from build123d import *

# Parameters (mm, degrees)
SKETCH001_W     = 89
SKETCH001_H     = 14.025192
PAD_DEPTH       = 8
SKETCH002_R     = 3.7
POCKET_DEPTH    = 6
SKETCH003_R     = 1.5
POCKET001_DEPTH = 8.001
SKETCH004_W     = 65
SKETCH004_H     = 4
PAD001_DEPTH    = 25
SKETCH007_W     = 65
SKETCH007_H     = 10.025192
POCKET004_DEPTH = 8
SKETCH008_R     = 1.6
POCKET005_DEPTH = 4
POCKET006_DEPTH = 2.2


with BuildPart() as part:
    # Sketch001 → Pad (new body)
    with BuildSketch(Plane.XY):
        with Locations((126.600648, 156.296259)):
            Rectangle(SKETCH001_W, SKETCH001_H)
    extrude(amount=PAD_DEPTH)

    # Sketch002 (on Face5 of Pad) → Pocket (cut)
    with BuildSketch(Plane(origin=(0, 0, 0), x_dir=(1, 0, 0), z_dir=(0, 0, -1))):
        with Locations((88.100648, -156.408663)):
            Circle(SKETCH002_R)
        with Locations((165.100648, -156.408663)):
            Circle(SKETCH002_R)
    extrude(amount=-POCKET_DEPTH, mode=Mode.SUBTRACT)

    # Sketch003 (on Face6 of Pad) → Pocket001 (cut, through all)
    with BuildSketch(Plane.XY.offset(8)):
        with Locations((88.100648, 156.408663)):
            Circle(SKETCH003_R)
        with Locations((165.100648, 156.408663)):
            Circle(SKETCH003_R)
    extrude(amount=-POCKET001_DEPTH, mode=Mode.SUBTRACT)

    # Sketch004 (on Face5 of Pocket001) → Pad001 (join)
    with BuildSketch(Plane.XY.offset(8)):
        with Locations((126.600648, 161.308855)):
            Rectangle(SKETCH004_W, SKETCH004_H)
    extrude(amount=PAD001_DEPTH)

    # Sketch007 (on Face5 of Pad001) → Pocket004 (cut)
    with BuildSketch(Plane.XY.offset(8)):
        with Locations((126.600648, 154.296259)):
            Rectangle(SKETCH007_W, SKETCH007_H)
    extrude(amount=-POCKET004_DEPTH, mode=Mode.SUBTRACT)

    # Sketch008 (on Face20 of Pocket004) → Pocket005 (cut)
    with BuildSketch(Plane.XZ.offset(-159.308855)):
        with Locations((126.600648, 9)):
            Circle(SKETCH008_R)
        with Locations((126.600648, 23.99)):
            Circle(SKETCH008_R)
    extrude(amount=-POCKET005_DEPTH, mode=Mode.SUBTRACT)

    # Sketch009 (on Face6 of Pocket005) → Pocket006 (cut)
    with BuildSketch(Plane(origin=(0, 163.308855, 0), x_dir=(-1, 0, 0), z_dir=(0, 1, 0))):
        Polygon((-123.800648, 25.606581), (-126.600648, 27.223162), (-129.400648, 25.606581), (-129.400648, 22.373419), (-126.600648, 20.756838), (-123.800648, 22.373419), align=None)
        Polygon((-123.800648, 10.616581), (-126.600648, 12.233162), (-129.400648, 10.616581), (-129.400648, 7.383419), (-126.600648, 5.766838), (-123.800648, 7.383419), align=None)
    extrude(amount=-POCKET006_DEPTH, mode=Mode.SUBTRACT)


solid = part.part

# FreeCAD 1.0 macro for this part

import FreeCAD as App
import Part
import Sketcher
from FreeCAD import Vector
Q = App.Units.Quantity


def add_polygon(sketch, points):
    """Adds a closed chain of lines whose ends are joined by coincident constraints."""
    first, n = sketch.GeometryCount, len(points)
    for a, b in zip(points, points[1:] + points[:1]):
        sketch.addGeometry(Part.LineSegment(App.Vector(*a, 0), App.Vector(*b, 0)), False)
    for i in range(n):
        sketch.addConstraint(Sketcher.Constraint("Coincident", first + i, 2, first + (i + 1) % n, 1))

doc = App.newDocument("Part")
body = doc.addObject("PartDesign::Body", "Body")

# Sketch on XY plane
sketch1 = doc.addObject("Sketcher::SketchObject", "Sketch")
body.addObject(sketch1)
sketch1.AttachmentSupport = (doc.XY_Plane, [""])
sketch1.MapMode = "FlatFace"
add_polygon(sketch1, [(82.100648, 163.308855), (82.100648, 149.283663), (171.100648, 149.283663), (171.100648, 163.308855)])  # lines 0-3
sketch1.addConstraint([
    Sketcher.Constraint("Vertical", 0),
    Sketcher.Constraint("Horizontal", 1),
    Sketcher.Constraint("Vertical", 2),
    Sketcher.Constraint("Horizontal", 3),
    Sketcher.Constraint("DistanceX", 1, 1, 1, 2, 89.0),
    Sketcher.Constraint("DistanceY", 0, 2, 0, 1, 14.025192),
    Sketcher.Constraint("DistanceX", -1, 1, 0, 2, 82.100648),
    Sketcher.Constraint("DistanceY", -1, 1, 0, 2, 149.283663),
])
pad1 = doc.addObject("PartDesign::Pad", "Pad")
body.addObject(pad1)
pad1.Profile = sketch1
pad1.Length = 8

# Sketch on XY plane
sketch2 = doc.addObject("Sketcher::SketchObject", "Sketch001")
body.addObject(sketch2)
sketch2.AttachmentSupport = (doc.XY_Plane, [""])
sketch2.MapMode = "FlatFace"
sketch2.addGeometry([
    Part.Circle(Vector(88.100648, 156.408663, 0), Vector(0, 0, 1), 3.7),
    Part.Circle(Vector(165.100648, 156.408663, 0), Vector(0, 0, 1), 3.7),
], False)
sketch2.addConstraint([
    Sketcher.Constraint("Equal", 0, 1),
    Sketcher.Constraint("Horizontal", 0, 3, 1, 3),
    Sketcher.Constraint("Diameter", 0, 7.4),
    Sketcher.Constraint("DistanceX", 0, 3, 1, 3, 77.0),
    Sketcher.Constraint("DistanceX", -1, 1, 0, 3, 88.100648),
    Sketcher.Constraint("DistanceY", -1, 1, 0, 3, 156.408663),
])
pocket1 = doc.addObject("PartDesign::Pocket", "Pocket")
body.addObject(pocket1)
pocket1.Profile = sketch2
pocket1.Length = 6
pocket1.Reversed = True

# Sketch on XY plane
sketch3 = doc.addObject("Sketcher::SketchObject", "Sketch002")
body.addObject(sketch3)
sketch3.AttachmentSupport = (doc.XY_Plane, [""])
sketch3.MapMode = "FlatFace"
sketch3.AttachmentOffset = App.Placement(Vector(0, 0, 8), App.Rotation())
sketch3.addGeometry([
    Part.Circle(Vector(88.100648, 156.408663, 0), Vector(0, 0, 1), 1.5),
    Part.Circle(Vector(165.100648, 156.408663, 0), Vector(0, 0, 1), 1.5),
], False)
sketch3.addConstraint([
    Sketcher.Constraint("Equal", 0, 1),
    Sketcher.Constraint("Horizontal", 0, 3, 1, 3),
    Sketcher.Constraint("Diameter", 0, 3.0),
    Sketcher.Constraint("DistanceX", 0, 3, 1, 3, 77.0),
    Sketcher.Constraint("DistanceX", -1, 1, 0, 3, 88.100648),
    Sketcher.Constraint("DistanceY", -1, 1, 0, 3, 156.408663),
])
pocket2 = doc.addObject("PartDesign::Pocket", "Pocket001")
body.addObject(pocket2)
pocket2.Profile = sketch3
pocket2.Type = "ThroughAll"

# Sketch on XY plane
sketch4 = doc.addObject("Sketcher::SketchObject", "Sketch003")
body.addObject(sketch4)
sketch4.AttachmentSupport = (doc.XY_Plane, [""])
sketch4.MapMode = "FlatFace"
sketch4.AttachmentOffset = App.Placement(Vector(0, 0, 8), App.Rotation())
add_polygon(sketch4, [(94.100648, 163.308855), (94.100648, 159.308855), (159.100648, 159.308855), (159.100648, 163.308855)])  # lines 0-3
sketch4.addConstraint([
    Sketcher.Constraint("Vertical", 0),
    Sketcher.Constraint("Horizontal", 1),
    Sketcher.Constraint("Vertical", 2),
    Sketcher.Constraint("Horizontal", 3),
    Sketcher.Constraint("DistanceX", 1, 1, 1, 2, 65.0),
    Sketcher.Constraint("DistanceY", 0, 2, 0, 1, 4.0),
    Sketcher.Constraint("DistanceX", -1, 1, 0, 2, 94.100648),
    Sketcher.Constraint("DistanceY", -1, 1, 0, 2, 159.308855),
])
pad2 = doc.addObject("PartDesign::Pad", "Pad001")
body.addObject(pad2)
pad2.Profile = sketch4
pad2.Length = 25

# Sketch on XY plane
sketch5 = doc.addObject("Sketcher::SketchObject", "Sketch004")
body.addObject(sketch5)
sketch5.AttachmentSupport = (doc.XY_Plane, [""])
sketch5.MapMode = "FlatFace"
sketch5.AttachmentOffset = App.Placement(Vector(0, 0, 8), App.Rotation())
add_polygon(sketch5, [(94.100648, 159.308855), (94.100648, 149.283663), (159.100648, 149.283663), (159.100648, 159.308855)])  # lines 0-3
sketch5.addConstraint([
    Sketcher.Constraint("Vertical", 0),
    Sketcher.Constraint("Horizontal", 1),
    Sketcher.Constraint("Vertical", 2),
    Sketcher.Constraint("Horizontal", 3),
    Sketcher.Constraint("DistanceX", 1, 1, 1, 2, 65.0),
    Sketcher.Constraint("DistanceY", 0, 2, 0, 1, 10.025192),
    Sketcher.Constraint("DistanceX", -1, 1, 0, 2, 94.100648),
    Sketcher.Constraint("DistanceY", -1, 1, 0, 2, 149.283663),
])
pocket3 = doc.addObject("PartDesign::Pocket", "Pocket002")
body.addObject(pocket3)
pocket3.Profile = sketch5
pocket3.Length = 8

# Sketch on XZ plane
sketch6 = doc.addObject("Sketcher::SketchObject", "Sketch005")
body.addObject(sketch6)
sketch6.AttachmentSupport = (doc.XZ_Plane, [""])
sketch6.MapMode = "FlatFace"
sketch6.AttachmentOffset = App.Placement(Vector(0, 0, -159.308855), App.Rotation())
sketch6.addGeometry([
    Part.Circle(Vector(126.600648, 9, 0), Vector(0, 0, 1), 1.6),
    Part.Circle(Vector(126.600648, 23.99, 0), Vector(0, 0, 1), 1.6),
], False)
sketch6.addConstraint([
    Sketcher.Constraint("Equal", 0, 1),
    Sketcher.Constraint("Vertical", 0, 3, 1, 3),
    Sketcher.Constraint("Diameter", 0, 3.2),
    Sketcher.Constraint("DistanceY", -1, 1, 0, 3, 9.0),
    Sketcher.Constraint("DistanceY", -1, 1, 1, 3, 23.99),
    Sketcher.Constraint("DistanceX", -1, 1, 0, 3, 126.600648),
])
pocket4 = doc.addObject("PartDesign::Pocket", "Pocket003")
body.addObject(pocket4)
pocket4.Profile = sketch6
pocket4.Length = 4

# Sketch on XZ plane
sketch7 = doc.addObject("Sketcher::SketchObject", "Sketch006")
body.addObject(sketch7)
sketch7.AttachmentSupport = (doc.XZ_Plane, [""])
sketch7.MapMode = "FlatFace"
sketch7.AttachmentOffset = App.Placement(Vector(0, 0, -163.308855), App.Rotation())
add_polygon(sketch7, [(123.800648, 25.606581), (126.600648, 27.223162), (129.400648, 25.606581), (129.400648, 22.373419), (126.600648, 20.756838), (123.800648, 22.373419)])  # lines 0-5
add_polygon(sketch7, [(123.800648, 10.616581), (126.600648, 12.233162), (129.400648, 10.616581), (129.400648, 7.383419), (126.600648, 5.766838), (123.800648, 7.383419)])  # lines 6-11
sketch7.addConstraint([
    Sketcher.Constraint("Vertical", 2),
    Sketcher.Constraint("Vertical", 5),
    Sketcher.Constraint("Vertical", 8),
    Sketcher.Constraint("Vertical", 11),
    Sketcher.Constraint("Parallel", 0, 3),
    Sketcher.Constraint("Parallel", 1, 4),
    Sketcher.Constraint("Parallel", 3, 6),
    Sketcher.Constraint("Parallel", 4, 7),
    Sketcher.Constraint("Parallel", 6, 9),
    Sketcher.Constraint("Parallel", 7, 10),
    Sketcher.Constraint("Horizontal", 2, 2, 4, 2),
    Sketcher.Constraint("Horizontal", 1, 2, 5, 2),
    Sketcher.Constraint("Horizontal", 8, 2, 10, 2),
    Sketcher.Constraint("Horizontal", 7, 2, 11, 2),
    Sketcher.Constraint("Vertical", 0, 2, 3, 2),
    Sketcher.Constraint("Vertical", 3, 2, 6, 2),
    Sketcher.Constraint("Vertical", 2, 2, 7, 2),
    Sketcher.Constraint("Equal", 5, 8),
    Sketcher.Constraint("Angle", 0, Q("30.000004 deg")),
    Sketcher.Constraint("DistanceX", 0, 2, 1, 2, 2.8),
    Sketcher.Constraint("DistanceY", 7, 2, 1, 2, 14.99),
    Sketcher.Constraint("DistanceY", 2, 2, 2, 1, 3.233162),
    Sketcher.Constraint("DistanceX", -1, 1, 0, 2, 126.600648),
    Sketcher.Constraint("DistanceY", -1, 1, 0, 2, 27.223162),
])
pocket5 = doc.addObject("PartDesign::Pocket", "Pocket004")
body.addObject(pocket5)
pocket5.Profile = sketch7
pocket5.Length = 2.2
pocket5.Reversed = True

doc.recompute()
